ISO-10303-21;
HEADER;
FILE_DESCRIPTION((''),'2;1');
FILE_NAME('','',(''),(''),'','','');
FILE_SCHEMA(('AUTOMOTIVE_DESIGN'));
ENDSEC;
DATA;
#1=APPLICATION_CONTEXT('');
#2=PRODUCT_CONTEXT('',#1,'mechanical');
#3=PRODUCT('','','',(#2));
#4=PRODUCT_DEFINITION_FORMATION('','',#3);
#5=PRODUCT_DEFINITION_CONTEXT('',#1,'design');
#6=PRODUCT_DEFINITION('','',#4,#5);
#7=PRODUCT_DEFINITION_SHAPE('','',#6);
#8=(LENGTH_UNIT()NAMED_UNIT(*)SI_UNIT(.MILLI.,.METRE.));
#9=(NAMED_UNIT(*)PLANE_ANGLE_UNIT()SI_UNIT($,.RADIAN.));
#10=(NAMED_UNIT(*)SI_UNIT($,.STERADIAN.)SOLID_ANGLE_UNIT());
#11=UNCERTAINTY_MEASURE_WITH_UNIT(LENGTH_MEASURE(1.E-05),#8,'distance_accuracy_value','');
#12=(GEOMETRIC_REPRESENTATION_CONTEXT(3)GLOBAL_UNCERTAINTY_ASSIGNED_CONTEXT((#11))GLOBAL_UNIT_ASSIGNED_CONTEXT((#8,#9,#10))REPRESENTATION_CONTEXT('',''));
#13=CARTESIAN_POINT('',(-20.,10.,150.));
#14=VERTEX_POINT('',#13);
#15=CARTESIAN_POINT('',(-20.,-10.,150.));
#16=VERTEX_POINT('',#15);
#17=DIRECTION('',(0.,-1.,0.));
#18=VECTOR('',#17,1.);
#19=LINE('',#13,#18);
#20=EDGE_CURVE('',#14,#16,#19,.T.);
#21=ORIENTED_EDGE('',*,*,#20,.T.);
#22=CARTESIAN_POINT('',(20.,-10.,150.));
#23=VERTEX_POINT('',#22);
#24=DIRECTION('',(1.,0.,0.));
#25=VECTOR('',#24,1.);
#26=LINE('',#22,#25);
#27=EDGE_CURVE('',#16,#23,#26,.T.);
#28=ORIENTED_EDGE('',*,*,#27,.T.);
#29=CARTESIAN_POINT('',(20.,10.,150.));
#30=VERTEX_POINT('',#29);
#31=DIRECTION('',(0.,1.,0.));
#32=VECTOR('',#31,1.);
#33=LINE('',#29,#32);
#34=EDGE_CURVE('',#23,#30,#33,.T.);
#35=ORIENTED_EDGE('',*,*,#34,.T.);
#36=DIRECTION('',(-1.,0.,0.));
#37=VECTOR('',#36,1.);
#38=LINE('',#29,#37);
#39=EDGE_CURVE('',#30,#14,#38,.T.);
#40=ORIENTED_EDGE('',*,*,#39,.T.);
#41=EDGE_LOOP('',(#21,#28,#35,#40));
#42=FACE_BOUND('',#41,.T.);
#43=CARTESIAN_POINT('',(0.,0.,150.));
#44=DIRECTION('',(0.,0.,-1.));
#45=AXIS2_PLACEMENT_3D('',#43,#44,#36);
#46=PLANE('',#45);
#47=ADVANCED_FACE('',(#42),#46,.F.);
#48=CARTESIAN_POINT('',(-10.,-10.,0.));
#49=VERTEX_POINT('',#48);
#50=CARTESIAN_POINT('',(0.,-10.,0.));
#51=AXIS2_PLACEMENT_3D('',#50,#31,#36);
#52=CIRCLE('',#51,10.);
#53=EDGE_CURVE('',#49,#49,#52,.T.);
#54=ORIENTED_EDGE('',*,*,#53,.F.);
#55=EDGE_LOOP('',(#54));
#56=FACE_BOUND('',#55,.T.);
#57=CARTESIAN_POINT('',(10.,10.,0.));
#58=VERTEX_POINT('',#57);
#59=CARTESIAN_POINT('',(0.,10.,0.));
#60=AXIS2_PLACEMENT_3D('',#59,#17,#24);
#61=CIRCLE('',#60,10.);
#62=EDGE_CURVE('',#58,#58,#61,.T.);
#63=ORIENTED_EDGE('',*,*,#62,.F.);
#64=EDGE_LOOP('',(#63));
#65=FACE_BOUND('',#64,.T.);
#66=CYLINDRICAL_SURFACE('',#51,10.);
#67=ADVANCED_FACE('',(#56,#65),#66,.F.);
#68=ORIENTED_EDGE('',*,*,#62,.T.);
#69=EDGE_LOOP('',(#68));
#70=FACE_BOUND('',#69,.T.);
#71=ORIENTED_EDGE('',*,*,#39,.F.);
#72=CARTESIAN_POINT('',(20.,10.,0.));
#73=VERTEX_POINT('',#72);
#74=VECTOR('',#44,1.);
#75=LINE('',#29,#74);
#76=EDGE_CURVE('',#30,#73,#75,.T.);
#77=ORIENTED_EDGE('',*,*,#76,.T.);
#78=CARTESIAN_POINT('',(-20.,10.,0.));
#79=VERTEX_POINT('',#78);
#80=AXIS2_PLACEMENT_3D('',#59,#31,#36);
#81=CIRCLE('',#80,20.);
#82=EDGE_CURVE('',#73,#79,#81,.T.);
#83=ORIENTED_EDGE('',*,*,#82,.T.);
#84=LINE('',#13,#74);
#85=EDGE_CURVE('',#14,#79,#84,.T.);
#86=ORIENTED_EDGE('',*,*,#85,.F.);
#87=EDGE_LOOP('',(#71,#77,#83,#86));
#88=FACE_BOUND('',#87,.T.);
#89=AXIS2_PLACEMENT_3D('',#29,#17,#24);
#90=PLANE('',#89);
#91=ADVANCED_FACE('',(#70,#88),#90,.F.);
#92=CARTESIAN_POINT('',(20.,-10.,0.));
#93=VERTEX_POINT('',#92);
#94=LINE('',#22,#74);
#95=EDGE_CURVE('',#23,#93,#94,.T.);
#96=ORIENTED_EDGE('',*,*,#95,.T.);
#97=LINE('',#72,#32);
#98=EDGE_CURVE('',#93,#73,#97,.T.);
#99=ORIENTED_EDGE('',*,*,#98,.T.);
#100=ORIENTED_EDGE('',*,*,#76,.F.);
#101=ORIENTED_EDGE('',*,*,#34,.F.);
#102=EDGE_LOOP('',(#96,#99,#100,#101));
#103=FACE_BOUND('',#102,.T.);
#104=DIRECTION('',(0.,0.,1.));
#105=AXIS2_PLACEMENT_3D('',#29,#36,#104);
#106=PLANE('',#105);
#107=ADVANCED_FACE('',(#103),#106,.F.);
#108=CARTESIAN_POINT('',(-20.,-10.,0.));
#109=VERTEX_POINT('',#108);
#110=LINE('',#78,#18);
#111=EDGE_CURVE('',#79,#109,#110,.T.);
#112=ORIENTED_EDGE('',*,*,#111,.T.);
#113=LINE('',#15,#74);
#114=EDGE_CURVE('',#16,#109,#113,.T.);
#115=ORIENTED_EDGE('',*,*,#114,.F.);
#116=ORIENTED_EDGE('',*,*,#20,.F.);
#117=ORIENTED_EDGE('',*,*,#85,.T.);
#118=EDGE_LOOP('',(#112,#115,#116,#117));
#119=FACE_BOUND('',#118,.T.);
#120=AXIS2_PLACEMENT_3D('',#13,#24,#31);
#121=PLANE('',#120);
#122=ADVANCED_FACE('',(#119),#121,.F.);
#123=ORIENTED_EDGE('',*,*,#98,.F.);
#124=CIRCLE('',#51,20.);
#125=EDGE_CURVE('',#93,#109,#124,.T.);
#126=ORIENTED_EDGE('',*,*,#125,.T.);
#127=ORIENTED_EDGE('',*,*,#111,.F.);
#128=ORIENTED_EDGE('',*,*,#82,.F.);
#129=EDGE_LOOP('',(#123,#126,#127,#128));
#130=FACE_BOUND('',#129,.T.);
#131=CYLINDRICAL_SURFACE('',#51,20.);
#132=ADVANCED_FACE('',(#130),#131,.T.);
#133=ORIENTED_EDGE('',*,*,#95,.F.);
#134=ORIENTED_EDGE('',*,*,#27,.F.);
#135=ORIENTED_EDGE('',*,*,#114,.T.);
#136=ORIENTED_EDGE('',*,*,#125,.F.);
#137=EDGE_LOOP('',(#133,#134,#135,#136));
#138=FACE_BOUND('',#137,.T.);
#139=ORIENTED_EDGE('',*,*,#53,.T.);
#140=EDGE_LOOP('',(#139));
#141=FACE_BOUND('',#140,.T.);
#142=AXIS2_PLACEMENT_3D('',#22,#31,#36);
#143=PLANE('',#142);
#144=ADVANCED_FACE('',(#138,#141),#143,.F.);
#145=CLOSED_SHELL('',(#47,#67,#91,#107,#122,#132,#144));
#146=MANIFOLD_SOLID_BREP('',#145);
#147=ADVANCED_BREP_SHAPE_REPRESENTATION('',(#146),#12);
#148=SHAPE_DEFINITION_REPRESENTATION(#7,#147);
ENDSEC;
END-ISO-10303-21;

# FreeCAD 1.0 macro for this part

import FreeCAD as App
import Part
import Sketcher

doc = App.newDocument("Part")
params = doc.addObject("Spreadsheet::Sheet", "Params")
for row, (alias, value) in enumerate([
    ("sketch1_width", "40 mm"),
    ("sketch1_height", "20 mm"),
    ("pad1_length", "150 mm"),
    ("sketch2_diameter", "40 mm"),
    ("pad2_length", "20 mm"),
    ("sketch3_diameter", "20 mm"),
], start=1):
    params.set(f"A{row}", alias)
    params.set(f"B{row}", "=" + value)
    params.setAlias(f"B{row}", alias)

body = doc.addObject("PartDesign::Body", "Body")

# Sketch on XY plane
sketch1 = body.newObject("Sketcher::SketchObject", "Sketch")
sketch1.AttachmentSupport = (doc.getObject("XY_Plane"), [""])
sketch1.MapMode = "FlatFace"
sketch1.addGeometry([
    Part.LineSegment(App.Vector(-20, 10, 0), App.Vector(-20, -10, 0)),
    Part.LineSegment(App.Vector(-20, -10, 0), App.Vector(20, -10, 0)),
    Part.LineSegment(App.Vector(20, -10, 0), App.Vector(20, 10, 0)),
    Part.LineSegment(App.Vector(20, 10, 0), App.Vector(-20, 10, 0)),
], False)
sketch1.addConstraint([
    Sketcher.Constraint("Coincident", 0, 2, 1, 1),
    Sketcher.Constraint("Coincident", 1, 2, 2, 1),
    Sketcher.Constraint("Coincident", 2, 2, 3, 1),
    Sketcher.Constraint("Coincident", 3, 2, 0, 1),
    Sketcher.Constraint("Vertical", 0),
    Sketcher.Constraint("Horizontal", 1),
    Sketcher.Constraint("Vertical", 2),
    Sketcher.Constraint("Horizontal", 3),
    Sketcher.Constraint("Symmetric", 0, 2, 2, 2, -1, 1),
    Sketcher.Constraint("DistanceX", 1, 1, 1, 2, 40.0),
    Sketcher.Constraint("DistanceY", 0, 2, 0, 1, 20.0),
])
sketch1.setExpression("Constraints[9]", "Params.sketch1_width")
sketch1.setExpression("Constraints[10]", "Params.sketch1_height")
pad1 = body.newObject("PartDesign::Pad", "Pad")
pad1.Profile = sketch1
pad1.setExpression("Length", "Params.pad1_length")

# Sketch on XZ plane
sketch2 = body.newObject("Sketcher::SketchObject", "Sketch001")
sketch2.AttachmentSupport = (doc.getObject("XZ_Plane"), [""])
sketch2.MapMode = "FlatFace"
sketch2.AttachmentOffset = App.Placement(App.Vector(0, 0, -10), App.Rotation())
sketch2.addGeometry(Part.Circle(App.Vector(0, 0, 0), App.Vector(0, 0, 1), 20), False)
sketch2.addConstraint([
    Sketcher.Constraint("Coincident", 0, 3, -1, 1),
    Sketcher.Constraint("Diameter", 0, 40.0),
])
sketch2.setExpression("Constraints[1]", "Params.sketch2_diameter")
pad2 = body.newObject("PartDesign::Pad", "Pad001")
pad2.Profile = sketch2
pad2.setExpression("Length", "Params.pad2_length")

# Sketch on XZ plane
sketch3 = body.newObject("Sketcher::SketchObject", "Sketch002")
sketch3.AttachmentSupport = (doc.getObject("XZ_Plane"), [""])
sketch3.MapMode = "FlatFace"
sketch3.AttachmentOffset = App.Placement(App.Vector(0, 0, -10), App.Rotation())
sketch3.addGeometry(Part.Circle(App.Vector(0, 0, 0), App.Vector(0, 0, 1), 10), False)
sketch3.addConstraint([
    Sketcher.Constraint("Coincident", 0, 3, -1, 1),
    Sketcher.Constraint("Diameter", 0, 20.0),
])
sketch3.setExpression("Constraints[1]", "Params.sketch3_diameter")
pocket1 = body.newObject("PartDesign::Pocket", "Pocket")
pocket1.Profile = sketch3
pocket1.Type = "ThroughAll"
pocket1.Midplane = True

doc.recompute()
